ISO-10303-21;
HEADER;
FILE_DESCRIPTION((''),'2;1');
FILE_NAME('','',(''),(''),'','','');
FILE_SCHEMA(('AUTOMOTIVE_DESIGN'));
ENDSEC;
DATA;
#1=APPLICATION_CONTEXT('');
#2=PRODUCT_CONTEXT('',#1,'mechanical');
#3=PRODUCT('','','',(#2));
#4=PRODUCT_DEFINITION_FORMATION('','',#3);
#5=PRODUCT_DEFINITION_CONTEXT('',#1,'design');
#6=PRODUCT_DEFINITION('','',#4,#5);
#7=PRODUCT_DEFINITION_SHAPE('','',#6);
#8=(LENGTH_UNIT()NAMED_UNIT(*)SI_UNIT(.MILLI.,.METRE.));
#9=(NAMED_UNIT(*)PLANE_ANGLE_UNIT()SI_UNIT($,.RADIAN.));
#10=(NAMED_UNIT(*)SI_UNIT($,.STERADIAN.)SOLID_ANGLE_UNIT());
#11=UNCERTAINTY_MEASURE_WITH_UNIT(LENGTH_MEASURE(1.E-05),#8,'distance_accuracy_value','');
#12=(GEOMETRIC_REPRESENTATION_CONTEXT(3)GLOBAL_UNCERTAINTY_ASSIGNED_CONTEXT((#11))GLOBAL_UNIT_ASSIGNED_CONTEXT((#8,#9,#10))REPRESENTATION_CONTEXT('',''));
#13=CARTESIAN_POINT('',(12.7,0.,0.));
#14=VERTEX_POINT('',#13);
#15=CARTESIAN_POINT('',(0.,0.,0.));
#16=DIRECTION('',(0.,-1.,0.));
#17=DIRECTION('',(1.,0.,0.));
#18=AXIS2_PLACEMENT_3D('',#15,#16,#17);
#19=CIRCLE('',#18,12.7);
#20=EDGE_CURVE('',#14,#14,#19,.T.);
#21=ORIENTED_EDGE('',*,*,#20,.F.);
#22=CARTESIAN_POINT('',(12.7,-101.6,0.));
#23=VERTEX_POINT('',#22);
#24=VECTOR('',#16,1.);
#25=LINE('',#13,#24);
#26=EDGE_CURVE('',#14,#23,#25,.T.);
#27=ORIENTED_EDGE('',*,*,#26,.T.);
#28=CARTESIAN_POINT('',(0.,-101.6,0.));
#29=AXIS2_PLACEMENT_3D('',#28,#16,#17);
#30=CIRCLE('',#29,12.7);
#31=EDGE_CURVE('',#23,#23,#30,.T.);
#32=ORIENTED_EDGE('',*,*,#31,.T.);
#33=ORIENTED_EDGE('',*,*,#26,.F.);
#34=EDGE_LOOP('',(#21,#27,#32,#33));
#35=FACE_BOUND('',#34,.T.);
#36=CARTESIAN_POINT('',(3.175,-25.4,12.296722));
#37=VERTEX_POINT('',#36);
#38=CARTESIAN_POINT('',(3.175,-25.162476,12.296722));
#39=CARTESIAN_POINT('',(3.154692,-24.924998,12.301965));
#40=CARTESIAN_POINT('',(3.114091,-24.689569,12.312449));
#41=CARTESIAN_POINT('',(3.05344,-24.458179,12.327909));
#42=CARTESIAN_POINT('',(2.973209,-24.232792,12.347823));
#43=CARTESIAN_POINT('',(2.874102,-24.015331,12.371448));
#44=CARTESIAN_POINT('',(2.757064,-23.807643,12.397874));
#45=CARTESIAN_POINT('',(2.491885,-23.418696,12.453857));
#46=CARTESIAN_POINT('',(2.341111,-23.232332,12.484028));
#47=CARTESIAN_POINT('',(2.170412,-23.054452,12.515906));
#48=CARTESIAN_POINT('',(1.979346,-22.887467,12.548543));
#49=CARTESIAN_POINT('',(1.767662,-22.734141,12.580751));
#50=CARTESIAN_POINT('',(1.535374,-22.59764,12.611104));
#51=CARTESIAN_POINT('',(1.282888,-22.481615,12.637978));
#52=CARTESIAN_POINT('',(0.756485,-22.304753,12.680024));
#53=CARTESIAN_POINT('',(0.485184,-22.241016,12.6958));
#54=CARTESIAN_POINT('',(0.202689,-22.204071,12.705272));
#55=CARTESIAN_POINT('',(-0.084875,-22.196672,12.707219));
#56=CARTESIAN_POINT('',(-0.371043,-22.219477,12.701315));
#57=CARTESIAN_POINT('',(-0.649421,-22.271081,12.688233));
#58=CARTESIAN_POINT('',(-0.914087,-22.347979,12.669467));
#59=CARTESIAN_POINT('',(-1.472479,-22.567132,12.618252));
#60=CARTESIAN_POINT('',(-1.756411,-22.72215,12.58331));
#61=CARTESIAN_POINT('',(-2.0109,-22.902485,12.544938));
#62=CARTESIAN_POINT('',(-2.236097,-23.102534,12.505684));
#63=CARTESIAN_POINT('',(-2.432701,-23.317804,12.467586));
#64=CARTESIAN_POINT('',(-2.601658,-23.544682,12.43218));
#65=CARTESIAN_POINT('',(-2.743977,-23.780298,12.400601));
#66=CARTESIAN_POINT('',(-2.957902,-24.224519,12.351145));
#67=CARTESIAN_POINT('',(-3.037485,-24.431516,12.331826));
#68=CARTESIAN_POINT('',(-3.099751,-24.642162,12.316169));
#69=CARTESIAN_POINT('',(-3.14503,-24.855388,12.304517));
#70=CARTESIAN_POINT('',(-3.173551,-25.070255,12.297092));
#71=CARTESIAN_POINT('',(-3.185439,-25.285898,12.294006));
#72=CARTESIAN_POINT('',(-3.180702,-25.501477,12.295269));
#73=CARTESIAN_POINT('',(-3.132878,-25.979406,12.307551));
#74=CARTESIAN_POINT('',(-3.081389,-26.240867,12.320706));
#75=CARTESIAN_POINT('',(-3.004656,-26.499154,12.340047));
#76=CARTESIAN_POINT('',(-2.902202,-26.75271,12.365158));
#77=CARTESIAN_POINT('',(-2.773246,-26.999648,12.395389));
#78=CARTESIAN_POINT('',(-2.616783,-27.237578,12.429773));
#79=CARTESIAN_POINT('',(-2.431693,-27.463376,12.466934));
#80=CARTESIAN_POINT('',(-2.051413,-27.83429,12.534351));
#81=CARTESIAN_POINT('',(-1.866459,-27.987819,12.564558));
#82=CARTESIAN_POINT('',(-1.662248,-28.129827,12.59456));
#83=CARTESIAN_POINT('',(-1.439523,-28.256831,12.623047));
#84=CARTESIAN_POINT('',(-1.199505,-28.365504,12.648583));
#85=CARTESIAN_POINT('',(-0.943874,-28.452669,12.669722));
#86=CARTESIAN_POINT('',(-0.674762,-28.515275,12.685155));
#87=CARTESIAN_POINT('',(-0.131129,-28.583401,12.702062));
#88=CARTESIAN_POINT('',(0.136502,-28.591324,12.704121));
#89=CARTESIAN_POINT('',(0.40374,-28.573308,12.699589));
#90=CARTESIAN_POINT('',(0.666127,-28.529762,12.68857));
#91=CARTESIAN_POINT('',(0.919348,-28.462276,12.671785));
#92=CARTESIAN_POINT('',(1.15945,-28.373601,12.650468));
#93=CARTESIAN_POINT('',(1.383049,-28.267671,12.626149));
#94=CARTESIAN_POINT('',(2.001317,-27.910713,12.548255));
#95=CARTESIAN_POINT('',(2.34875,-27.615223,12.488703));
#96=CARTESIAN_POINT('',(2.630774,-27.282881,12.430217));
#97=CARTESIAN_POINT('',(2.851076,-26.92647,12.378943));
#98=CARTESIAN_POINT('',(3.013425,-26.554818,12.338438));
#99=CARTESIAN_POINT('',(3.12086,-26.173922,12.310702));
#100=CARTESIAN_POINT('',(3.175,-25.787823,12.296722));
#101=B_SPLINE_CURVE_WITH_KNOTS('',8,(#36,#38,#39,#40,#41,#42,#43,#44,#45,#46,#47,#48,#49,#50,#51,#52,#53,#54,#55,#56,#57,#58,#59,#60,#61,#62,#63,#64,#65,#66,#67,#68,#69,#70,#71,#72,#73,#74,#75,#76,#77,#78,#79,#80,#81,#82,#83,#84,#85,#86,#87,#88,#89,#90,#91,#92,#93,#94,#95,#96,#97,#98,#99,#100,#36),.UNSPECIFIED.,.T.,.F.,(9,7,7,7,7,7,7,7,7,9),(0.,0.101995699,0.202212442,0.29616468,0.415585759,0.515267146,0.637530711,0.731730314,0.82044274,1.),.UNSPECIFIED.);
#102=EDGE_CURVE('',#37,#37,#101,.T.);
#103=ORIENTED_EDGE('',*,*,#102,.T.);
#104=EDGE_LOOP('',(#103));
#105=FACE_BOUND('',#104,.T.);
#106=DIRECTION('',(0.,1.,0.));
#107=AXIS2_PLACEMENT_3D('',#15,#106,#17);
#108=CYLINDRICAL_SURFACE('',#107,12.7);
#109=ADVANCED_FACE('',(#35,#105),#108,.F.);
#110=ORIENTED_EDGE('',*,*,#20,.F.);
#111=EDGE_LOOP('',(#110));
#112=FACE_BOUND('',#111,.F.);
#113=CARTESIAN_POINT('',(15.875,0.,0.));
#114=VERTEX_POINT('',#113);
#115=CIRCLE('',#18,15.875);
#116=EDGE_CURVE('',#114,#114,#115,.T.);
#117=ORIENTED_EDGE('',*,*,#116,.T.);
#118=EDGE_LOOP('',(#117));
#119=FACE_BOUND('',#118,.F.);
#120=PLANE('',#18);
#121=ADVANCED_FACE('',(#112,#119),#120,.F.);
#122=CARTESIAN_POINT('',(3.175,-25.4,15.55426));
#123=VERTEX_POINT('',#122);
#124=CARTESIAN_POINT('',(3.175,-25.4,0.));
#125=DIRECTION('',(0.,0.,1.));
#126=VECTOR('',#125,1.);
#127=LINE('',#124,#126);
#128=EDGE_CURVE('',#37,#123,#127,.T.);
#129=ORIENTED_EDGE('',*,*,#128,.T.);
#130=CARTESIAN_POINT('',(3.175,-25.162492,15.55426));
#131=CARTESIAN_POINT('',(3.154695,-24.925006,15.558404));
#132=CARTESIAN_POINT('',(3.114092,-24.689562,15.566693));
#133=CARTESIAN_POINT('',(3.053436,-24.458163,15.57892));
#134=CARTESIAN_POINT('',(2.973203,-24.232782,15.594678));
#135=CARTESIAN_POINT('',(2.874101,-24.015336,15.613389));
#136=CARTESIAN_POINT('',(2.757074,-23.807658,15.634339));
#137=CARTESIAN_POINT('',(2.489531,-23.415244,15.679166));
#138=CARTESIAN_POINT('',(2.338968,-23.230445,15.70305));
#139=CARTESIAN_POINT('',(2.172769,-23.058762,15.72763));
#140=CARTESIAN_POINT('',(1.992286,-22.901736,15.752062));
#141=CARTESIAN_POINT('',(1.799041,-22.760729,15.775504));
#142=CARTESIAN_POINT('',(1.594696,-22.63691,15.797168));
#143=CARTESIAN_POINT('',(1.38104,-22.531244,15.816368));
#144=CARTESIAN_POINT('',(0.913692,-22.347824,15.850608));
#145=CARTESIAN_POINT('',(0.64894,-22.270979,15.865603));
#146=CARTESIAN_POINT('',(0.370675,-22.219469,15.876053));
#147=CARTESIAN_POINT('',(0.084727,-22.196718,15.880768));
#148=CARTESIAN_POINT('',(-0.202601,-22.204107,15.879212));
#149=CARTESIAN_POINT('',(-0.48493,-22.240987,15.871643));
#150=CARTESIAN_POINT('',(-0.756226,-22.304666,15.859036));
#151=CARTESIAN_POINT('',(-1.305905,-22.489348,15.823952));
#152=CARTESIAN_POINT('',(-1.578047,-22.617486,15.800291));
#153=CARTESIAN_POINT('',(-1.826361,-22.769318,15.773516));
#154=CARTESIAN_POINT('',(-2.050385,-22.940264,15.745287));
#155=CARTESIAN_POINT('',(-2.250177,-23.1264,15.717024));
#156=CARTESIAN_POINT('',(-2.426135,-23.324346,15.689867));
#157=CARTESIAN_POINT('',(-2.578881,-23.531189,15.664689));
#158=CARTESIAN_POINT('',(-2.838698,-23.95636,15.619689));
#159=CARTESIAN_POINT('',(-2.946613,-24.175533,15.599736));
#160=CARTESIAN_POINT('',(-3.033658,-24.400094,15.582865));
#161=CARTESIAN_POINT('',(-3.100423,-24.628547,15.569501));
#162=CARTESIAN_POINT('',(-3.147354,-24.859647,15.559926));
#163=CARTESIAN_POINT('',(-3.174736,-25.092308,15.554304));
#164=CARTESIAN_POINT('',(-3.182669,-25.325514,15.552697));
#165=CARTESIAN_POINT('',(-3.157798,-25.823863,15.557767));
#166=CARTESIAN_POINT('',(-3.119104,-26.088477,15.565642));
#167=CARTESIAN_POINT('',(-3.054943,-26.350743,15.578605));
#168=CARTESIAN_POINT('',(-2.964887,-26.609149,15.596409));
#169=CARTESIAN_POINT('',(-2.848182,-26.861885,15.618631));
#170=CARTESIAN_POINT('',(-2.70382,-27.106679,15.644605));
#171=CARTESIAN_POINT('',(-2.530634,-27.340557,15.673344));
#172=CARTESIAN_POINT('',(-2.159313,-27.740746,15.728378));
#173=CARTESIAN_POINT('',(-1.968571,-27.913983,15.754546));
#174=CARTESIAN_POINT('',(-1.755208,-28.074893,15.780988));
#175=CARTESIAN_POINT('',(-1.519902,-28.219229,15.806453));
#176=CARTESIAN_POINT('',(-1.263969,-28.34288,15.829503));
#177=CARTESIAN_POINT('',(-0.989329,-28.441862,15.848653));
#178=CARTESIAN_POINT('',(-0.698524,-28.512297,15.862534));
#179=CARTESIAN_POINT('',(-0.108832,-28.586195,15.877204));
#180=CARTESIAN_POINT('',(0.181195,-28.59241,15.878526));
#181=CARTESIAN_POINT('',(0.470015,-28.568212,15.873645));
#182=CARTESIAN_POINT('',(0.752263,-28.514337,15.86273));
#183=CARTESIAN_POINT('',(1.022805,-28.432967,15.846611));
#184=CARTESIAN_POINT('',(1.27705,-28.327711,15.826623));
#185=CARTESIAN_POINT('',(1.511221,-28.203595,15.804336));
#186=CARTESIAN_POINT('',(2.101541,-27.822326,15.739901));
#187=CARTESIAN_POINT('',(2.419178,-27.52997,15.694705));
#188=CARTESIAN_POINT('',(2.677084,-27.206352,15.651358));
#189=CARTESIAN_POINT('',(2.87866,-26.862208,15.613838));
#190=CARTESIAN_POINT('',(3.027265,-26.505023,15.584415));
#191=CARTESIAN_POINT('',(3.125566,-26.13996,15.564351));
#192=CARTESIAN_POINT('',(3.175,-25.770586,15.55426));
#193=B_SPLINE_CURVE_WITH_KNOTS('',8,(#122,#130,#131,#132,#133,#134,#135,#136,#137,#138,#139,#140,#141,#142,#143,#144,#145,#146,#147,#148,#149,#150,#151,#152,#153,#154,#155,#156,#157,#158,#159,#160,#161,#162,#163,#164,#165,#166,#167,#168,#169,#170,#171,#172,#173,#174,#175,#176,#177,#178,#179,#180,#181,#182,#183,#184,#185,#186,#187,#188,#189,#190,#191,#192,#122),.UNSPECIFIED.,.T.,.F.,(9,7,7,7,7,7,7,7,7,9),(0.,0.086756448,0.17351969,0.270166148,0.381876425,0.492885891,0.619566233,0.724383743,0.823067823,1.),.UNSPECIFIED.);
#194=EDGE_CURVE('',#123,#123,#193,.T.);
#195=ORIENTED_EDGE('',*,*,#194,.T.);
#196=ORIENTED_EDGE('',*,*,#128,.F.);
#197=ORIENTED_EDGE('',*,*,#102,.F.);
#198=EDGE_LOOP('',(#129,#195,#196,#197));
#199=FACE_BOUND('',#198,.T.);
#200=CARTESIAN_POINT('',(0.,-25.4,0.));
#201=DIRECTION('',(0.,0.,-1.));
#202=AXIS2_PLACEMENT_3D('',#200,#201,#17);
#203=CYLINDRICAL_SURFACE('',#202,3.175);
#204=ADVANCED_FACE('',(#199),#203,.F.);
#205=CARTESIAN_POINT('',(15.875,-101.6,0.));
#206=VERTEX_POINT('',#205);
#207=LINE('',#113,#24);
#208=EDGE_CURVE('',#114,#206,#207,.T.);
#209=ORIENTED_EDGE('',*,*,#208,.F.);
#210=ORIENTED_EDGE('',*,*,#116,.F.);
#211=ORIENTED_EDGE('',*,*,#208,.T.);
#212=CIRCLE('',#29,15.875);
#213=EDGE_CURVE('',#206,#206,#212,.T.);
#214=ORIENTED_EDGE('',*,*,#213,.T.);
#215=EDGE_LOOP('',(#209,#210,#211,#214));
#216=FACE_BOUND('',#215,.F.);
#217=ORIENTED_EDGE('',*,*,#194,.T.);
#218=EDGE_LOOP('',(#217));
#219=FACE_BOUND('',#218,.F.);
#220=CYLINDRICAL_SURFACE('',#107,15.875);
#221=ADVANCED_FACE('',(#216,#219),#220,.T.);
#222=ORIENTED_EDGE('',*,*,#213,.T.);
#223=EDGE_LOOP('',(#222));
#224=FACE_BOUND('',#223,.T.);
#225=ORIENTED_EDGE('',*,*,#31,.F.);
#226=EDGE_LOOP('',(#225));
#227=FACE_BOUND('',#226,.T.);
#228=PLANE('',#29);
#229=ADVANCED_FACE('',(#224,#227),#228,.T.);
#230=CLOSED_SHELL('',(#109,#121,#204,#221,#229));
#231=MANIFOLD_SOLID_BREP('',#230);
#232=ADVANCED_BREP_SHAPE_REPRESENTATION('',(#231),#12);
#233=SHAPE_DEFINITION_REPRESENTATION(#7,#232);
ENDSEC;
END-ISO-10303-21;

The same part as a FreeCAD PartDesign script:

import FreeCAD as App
import Part
import Sketcher
Q = App.Units.Quantity

doc = App.newDocument("Part")
params = doc.addObject("Spreadsheet::Sheet", "Params")
for row, (alias, value) in enumerate([
    ("sketch1_diameter", "1 in"),
    ("sketch1_diameter2", "1.25 in"),
    ("pad1_length", "4 in"),
    ("sketch2_diameter", "0.25 in"),
], start=1):
    params.set(f"A{row}", alias)
    params.set(f"B{row}", "=" + value)
    params.setAlias(f"B{row}", alias)

body = doc.addObject("PartDesign::Body", "Body")

# Sketch on XZ plane
sketch1 = body.newObject("Sketcher::SketchObject", "Sketch")
sketch1.AttachmentSupport = (doc.getObject("XZ_Plane"), [""])
sketch1.MapMode = "FlatFace"
sketch1.addGeometry([
    Part.Circle(App.Vector(0, 0, 0), App.Vector(0, 0, 1), 16),
    Part.Circle(App.Vector(0, 0, 0), App.Vector(0, 0, 1), 13),
], False)
sketch1.addConstraint([
    Sketcher.Constraint("Coincident", 0, 3, -1, 1),
    Sketcher.Constraint("Coincident", 1, 3, -1, 1),
    Sketcher.Constraint("Diameter", 1, Q("1 in")),
    Sketcher.Constraint("Diameter", 0, Q("1.25 in")),
])
sketch1.setExpression("Constraints[2]", "Params.sketch1_diameter")
sketch1.setExpression("Constraints[3]", "Params.sketch1_diameter2")
pad1 = body.newObject("PartDesign::Pad", "Pad")
pad1.Profile = sketch1
pad1.setExpression("Length", "Params.pad1_length")

# Sketch on XY plane
sketch2 = body.newObject("Sketcher::SketchObject", "Sketch001")
sketch2.AttachmentSupport = (doc.getObject("XY_Plane"), [""])
sketch2.MapMode = "FlatFace"
sketch2.addGeometry(Part.Circle(App.Vector(0, -25.4, 0), App.Vector(0, 0, 1), 3.2), False)
sketch2.addConstraint([
    Sketcher.Constraint("PointOnObject", 0, 3, -2),
    Sketcher.Constraint("Diameter", 0, Q("0.25 in")),
    Sketcher.Constraint("DistanceY", 0, 3, -1, 1, Q("1 in")),
])
sketch2.setExpression("Constraints[1]", "Params.sketch2_diameter")
pocket1 = body.newObject("PartDesign::Pocket", "Pocket")
pocket1.Profile = sketch2
pocket1.Type = "ThroughAll"
pocket1.Reversed = True

doc.recompute()
